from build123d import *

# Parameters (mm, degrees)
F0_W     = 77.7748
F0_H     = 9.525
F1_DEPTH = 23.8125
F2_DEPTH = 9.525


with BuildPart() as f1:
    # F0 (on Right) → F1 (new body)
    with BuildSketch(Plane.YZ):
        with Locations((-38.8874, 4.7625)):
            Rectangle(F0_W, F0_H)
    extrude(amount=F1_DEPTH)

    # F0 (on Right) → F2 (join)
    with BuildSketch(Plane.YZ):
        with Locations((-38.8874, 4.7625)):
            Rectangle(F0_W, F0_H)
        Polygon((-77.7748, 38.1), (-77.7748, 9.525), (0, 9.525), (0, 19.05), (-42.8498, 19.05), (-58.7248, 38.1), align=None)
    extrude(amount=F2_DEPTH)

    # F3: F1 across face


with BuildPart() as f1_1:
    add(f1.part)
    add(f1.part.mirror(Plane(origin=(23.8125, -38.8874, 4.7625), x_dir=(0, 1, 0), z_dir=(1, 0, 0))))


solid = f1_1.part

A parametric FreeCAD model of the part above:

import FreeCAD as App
import Part
import Sketcher
from FreeCAD import Vector
Q = App.Units.Quantity

doc = App.newDocument("Part")
body = doc.addObject("PartDesign::Body", "Body")

# Sketch on YZ plane
sketch1 = doc.addObject("Sketcher::SketchObject", "Sketch")
body.addObject(sketch1)
sketch1.AttachmentSupport = (doc.YZ_Plane, [""])
sketch1.MapMode = "FlatFace"
sketch1.addGeometry(Part.LineSegment(Vector(-78, 10, 0), Vector(-78, 0, 0)), False)
sketch1.addGeometry(Part.LineSegment(Vector(-78, 0, 0), Vector(0, 0, 0)), False)
sketch1.addGeometry(Part.LineSegment(Vector(0, 0, 0), Vector(0, 10, 0)), False)
sketch1.addGeometry(Part.LineSegment(Vector(0, 10, 0), Vector(-78, 10, 0)), False)
sketch1.addConstraint(Sketcher.Constraint("Coincident", 0, 2, 1, 1))
sketch1.addConstraint(Sketcher.Constraint("Coincident", 1, 2, 2, 1))
sketch1.addConstraint(Sketcher.Constraint("Coincident", 2, 2, 3, 1))
sketch1.addConstraint(Sketcher.Constraint("Coincident", 3, 2, 0, 1))
sketch1.addConstraint(Sketcher.Constraint("Vertical", 0))
sketch1.addConstraint(Sketcher.Constraint("Horizontal", 1))
sketch1.addConstraint(Sketcher.Constraint("Vertical", 2))
sketch1.addConstraint(Sketcher.Constraint("Horizontal", 3))
sketch1.addConstraint(Sketcher.Constraint("Coincident", 1, 2, -1, 1))
sketch1.addConstraint(Sketcher.Constraint("DistanceX", 1, 1, 1, 2, Q("3.062 in")))
sketch1.addConstraint(Sketcher.Constraint("DistanceY", 0, 2, 0, 1, Q("0.375 in")))
pad1 = doc.addObject("PartDesign::Pad", "Pad")
body.addObject(pad1)
pad1.Profile = sketch1
pad1.Length = Q("0.9375 in")

# Sketch on YZ plane
sketch2 = doc.addObject("Sketcher::SketchObject", "Sketch001")
body.addObject(sketch2)
sketch2.AttachmentSupport = (doc.YZ_Plane, [""])
sketch2.MapMode = "FlatFace"
sketch2.addGeometry(Part.LineSegment(Vector(-78, 0, 0), Vector(0, 0, 0)), False)
sketch2.addGeometry(Part.LineSegment(Vector(0, 0, 0), Vector(0, 19, 0)), False)
sketch2.addGeometry(Part.LineSegment(Vector(0, 19, 0), Vector(-43, 19, 0)), False)
sketch2.addGeometry(Part.LineSegment(Vector(-43, 19, 0), Vector(-59, 38, 0)), False)
sketch2.addGeometry(Part.LineSegment(Vector(-59, 38, 0), Vector(-78, 38, 0)), False)
sketch2.addGeometry(Part.LineSegment(Vector(-78, 38, 0), Vector(-78, 0, 0)), False)
sketch2.addConstraint(Sketcher.Constraint("Coincident", 0, 2, 1, 1))
sketch2.addConstraint(Sketcher.Constraint("Coincident", 1, 2, 2, 1))
sketch2.addConstraint(Sketcher.Constraint("Coincident", 2, 2, 3, 1))
sketch2.addConstraint(Sketcher.Constraint("Coincident", 3, 2, 4, 1))
sketch2.addConstraint(Sketcher.Constraint("Coincident", 4, 2, 5, 1))
sketch2.addConstraint(Sketcher.Constraint("Coincident", 5, 2, 0, 1))
sketch2.addConstraint(Sketcher.Constraint("Horizontal", 0))
sketch2.addConstraint(Sketcher.Constraint("Vertical", 1))
sketch2.addConstraint(Sketcher.Constraint("Horizontal", 2))
sketch2.addConstraint(Sketcher.Constraint("Horizontal", 4))
sketch2.addConstraint(Sketcher.Constraint("Vertical", 5))
sketch2.addConstraint(Sketcher.Constraint("Coincident", 0, 2, -1, 1))
sketch2.addConstraint(Sketcher.Constraint("Equal", 4, 1))
sketch2.addConstraint(Sketcher.Constraint("DistanceY", 5, 2, 5, 1, Q("1.5 in")))
sketch2.addConstraint(Sketcher.Constraint("DistanceX", 4, 2, 4, 1, Q("0.75 in")))
sketch2.addConstraint(Sketcher.Constraint("DistanceX", 0, 1, 0, 2, Q("3.062 in")))
sketch2.addConstraint(Sketcher.Constraint("DistanceX", 2, 2, 2, 1, Q("1.687 in")))
pad2 = doc.addObject("PartDesign::Pad", "Pad001")
body.addObject(pad2)
pad2.Profile = sketch2
pad2.Length = Q("0.375 in")
body2 = doc.addObject("PartDesign::Body", "Body001")
doc.recompute()

body2.BaseFeature = body
doc.recompute()

mirroring = doc.addObject("Part::Mirroring", "Mirroring")
mirroring.Source = body
mirroring.Base = Vector(23.8125, -38.8874, 4.7625)
mirroring.Normal = Vector(1, 0, 0)
body3 = doc.addObject("PartDesign::Body", "Body002")
body3.BaseFeature = mirroring
boolean = doc.addObject("PartDesign::Boolean", "Boolean")
body2.addObject(boolean)
boolean.Type = "Fuse"
boolean.addObjects([body3])
doc.recompute()
mirroring.Visibility = False

doc.recompute()
